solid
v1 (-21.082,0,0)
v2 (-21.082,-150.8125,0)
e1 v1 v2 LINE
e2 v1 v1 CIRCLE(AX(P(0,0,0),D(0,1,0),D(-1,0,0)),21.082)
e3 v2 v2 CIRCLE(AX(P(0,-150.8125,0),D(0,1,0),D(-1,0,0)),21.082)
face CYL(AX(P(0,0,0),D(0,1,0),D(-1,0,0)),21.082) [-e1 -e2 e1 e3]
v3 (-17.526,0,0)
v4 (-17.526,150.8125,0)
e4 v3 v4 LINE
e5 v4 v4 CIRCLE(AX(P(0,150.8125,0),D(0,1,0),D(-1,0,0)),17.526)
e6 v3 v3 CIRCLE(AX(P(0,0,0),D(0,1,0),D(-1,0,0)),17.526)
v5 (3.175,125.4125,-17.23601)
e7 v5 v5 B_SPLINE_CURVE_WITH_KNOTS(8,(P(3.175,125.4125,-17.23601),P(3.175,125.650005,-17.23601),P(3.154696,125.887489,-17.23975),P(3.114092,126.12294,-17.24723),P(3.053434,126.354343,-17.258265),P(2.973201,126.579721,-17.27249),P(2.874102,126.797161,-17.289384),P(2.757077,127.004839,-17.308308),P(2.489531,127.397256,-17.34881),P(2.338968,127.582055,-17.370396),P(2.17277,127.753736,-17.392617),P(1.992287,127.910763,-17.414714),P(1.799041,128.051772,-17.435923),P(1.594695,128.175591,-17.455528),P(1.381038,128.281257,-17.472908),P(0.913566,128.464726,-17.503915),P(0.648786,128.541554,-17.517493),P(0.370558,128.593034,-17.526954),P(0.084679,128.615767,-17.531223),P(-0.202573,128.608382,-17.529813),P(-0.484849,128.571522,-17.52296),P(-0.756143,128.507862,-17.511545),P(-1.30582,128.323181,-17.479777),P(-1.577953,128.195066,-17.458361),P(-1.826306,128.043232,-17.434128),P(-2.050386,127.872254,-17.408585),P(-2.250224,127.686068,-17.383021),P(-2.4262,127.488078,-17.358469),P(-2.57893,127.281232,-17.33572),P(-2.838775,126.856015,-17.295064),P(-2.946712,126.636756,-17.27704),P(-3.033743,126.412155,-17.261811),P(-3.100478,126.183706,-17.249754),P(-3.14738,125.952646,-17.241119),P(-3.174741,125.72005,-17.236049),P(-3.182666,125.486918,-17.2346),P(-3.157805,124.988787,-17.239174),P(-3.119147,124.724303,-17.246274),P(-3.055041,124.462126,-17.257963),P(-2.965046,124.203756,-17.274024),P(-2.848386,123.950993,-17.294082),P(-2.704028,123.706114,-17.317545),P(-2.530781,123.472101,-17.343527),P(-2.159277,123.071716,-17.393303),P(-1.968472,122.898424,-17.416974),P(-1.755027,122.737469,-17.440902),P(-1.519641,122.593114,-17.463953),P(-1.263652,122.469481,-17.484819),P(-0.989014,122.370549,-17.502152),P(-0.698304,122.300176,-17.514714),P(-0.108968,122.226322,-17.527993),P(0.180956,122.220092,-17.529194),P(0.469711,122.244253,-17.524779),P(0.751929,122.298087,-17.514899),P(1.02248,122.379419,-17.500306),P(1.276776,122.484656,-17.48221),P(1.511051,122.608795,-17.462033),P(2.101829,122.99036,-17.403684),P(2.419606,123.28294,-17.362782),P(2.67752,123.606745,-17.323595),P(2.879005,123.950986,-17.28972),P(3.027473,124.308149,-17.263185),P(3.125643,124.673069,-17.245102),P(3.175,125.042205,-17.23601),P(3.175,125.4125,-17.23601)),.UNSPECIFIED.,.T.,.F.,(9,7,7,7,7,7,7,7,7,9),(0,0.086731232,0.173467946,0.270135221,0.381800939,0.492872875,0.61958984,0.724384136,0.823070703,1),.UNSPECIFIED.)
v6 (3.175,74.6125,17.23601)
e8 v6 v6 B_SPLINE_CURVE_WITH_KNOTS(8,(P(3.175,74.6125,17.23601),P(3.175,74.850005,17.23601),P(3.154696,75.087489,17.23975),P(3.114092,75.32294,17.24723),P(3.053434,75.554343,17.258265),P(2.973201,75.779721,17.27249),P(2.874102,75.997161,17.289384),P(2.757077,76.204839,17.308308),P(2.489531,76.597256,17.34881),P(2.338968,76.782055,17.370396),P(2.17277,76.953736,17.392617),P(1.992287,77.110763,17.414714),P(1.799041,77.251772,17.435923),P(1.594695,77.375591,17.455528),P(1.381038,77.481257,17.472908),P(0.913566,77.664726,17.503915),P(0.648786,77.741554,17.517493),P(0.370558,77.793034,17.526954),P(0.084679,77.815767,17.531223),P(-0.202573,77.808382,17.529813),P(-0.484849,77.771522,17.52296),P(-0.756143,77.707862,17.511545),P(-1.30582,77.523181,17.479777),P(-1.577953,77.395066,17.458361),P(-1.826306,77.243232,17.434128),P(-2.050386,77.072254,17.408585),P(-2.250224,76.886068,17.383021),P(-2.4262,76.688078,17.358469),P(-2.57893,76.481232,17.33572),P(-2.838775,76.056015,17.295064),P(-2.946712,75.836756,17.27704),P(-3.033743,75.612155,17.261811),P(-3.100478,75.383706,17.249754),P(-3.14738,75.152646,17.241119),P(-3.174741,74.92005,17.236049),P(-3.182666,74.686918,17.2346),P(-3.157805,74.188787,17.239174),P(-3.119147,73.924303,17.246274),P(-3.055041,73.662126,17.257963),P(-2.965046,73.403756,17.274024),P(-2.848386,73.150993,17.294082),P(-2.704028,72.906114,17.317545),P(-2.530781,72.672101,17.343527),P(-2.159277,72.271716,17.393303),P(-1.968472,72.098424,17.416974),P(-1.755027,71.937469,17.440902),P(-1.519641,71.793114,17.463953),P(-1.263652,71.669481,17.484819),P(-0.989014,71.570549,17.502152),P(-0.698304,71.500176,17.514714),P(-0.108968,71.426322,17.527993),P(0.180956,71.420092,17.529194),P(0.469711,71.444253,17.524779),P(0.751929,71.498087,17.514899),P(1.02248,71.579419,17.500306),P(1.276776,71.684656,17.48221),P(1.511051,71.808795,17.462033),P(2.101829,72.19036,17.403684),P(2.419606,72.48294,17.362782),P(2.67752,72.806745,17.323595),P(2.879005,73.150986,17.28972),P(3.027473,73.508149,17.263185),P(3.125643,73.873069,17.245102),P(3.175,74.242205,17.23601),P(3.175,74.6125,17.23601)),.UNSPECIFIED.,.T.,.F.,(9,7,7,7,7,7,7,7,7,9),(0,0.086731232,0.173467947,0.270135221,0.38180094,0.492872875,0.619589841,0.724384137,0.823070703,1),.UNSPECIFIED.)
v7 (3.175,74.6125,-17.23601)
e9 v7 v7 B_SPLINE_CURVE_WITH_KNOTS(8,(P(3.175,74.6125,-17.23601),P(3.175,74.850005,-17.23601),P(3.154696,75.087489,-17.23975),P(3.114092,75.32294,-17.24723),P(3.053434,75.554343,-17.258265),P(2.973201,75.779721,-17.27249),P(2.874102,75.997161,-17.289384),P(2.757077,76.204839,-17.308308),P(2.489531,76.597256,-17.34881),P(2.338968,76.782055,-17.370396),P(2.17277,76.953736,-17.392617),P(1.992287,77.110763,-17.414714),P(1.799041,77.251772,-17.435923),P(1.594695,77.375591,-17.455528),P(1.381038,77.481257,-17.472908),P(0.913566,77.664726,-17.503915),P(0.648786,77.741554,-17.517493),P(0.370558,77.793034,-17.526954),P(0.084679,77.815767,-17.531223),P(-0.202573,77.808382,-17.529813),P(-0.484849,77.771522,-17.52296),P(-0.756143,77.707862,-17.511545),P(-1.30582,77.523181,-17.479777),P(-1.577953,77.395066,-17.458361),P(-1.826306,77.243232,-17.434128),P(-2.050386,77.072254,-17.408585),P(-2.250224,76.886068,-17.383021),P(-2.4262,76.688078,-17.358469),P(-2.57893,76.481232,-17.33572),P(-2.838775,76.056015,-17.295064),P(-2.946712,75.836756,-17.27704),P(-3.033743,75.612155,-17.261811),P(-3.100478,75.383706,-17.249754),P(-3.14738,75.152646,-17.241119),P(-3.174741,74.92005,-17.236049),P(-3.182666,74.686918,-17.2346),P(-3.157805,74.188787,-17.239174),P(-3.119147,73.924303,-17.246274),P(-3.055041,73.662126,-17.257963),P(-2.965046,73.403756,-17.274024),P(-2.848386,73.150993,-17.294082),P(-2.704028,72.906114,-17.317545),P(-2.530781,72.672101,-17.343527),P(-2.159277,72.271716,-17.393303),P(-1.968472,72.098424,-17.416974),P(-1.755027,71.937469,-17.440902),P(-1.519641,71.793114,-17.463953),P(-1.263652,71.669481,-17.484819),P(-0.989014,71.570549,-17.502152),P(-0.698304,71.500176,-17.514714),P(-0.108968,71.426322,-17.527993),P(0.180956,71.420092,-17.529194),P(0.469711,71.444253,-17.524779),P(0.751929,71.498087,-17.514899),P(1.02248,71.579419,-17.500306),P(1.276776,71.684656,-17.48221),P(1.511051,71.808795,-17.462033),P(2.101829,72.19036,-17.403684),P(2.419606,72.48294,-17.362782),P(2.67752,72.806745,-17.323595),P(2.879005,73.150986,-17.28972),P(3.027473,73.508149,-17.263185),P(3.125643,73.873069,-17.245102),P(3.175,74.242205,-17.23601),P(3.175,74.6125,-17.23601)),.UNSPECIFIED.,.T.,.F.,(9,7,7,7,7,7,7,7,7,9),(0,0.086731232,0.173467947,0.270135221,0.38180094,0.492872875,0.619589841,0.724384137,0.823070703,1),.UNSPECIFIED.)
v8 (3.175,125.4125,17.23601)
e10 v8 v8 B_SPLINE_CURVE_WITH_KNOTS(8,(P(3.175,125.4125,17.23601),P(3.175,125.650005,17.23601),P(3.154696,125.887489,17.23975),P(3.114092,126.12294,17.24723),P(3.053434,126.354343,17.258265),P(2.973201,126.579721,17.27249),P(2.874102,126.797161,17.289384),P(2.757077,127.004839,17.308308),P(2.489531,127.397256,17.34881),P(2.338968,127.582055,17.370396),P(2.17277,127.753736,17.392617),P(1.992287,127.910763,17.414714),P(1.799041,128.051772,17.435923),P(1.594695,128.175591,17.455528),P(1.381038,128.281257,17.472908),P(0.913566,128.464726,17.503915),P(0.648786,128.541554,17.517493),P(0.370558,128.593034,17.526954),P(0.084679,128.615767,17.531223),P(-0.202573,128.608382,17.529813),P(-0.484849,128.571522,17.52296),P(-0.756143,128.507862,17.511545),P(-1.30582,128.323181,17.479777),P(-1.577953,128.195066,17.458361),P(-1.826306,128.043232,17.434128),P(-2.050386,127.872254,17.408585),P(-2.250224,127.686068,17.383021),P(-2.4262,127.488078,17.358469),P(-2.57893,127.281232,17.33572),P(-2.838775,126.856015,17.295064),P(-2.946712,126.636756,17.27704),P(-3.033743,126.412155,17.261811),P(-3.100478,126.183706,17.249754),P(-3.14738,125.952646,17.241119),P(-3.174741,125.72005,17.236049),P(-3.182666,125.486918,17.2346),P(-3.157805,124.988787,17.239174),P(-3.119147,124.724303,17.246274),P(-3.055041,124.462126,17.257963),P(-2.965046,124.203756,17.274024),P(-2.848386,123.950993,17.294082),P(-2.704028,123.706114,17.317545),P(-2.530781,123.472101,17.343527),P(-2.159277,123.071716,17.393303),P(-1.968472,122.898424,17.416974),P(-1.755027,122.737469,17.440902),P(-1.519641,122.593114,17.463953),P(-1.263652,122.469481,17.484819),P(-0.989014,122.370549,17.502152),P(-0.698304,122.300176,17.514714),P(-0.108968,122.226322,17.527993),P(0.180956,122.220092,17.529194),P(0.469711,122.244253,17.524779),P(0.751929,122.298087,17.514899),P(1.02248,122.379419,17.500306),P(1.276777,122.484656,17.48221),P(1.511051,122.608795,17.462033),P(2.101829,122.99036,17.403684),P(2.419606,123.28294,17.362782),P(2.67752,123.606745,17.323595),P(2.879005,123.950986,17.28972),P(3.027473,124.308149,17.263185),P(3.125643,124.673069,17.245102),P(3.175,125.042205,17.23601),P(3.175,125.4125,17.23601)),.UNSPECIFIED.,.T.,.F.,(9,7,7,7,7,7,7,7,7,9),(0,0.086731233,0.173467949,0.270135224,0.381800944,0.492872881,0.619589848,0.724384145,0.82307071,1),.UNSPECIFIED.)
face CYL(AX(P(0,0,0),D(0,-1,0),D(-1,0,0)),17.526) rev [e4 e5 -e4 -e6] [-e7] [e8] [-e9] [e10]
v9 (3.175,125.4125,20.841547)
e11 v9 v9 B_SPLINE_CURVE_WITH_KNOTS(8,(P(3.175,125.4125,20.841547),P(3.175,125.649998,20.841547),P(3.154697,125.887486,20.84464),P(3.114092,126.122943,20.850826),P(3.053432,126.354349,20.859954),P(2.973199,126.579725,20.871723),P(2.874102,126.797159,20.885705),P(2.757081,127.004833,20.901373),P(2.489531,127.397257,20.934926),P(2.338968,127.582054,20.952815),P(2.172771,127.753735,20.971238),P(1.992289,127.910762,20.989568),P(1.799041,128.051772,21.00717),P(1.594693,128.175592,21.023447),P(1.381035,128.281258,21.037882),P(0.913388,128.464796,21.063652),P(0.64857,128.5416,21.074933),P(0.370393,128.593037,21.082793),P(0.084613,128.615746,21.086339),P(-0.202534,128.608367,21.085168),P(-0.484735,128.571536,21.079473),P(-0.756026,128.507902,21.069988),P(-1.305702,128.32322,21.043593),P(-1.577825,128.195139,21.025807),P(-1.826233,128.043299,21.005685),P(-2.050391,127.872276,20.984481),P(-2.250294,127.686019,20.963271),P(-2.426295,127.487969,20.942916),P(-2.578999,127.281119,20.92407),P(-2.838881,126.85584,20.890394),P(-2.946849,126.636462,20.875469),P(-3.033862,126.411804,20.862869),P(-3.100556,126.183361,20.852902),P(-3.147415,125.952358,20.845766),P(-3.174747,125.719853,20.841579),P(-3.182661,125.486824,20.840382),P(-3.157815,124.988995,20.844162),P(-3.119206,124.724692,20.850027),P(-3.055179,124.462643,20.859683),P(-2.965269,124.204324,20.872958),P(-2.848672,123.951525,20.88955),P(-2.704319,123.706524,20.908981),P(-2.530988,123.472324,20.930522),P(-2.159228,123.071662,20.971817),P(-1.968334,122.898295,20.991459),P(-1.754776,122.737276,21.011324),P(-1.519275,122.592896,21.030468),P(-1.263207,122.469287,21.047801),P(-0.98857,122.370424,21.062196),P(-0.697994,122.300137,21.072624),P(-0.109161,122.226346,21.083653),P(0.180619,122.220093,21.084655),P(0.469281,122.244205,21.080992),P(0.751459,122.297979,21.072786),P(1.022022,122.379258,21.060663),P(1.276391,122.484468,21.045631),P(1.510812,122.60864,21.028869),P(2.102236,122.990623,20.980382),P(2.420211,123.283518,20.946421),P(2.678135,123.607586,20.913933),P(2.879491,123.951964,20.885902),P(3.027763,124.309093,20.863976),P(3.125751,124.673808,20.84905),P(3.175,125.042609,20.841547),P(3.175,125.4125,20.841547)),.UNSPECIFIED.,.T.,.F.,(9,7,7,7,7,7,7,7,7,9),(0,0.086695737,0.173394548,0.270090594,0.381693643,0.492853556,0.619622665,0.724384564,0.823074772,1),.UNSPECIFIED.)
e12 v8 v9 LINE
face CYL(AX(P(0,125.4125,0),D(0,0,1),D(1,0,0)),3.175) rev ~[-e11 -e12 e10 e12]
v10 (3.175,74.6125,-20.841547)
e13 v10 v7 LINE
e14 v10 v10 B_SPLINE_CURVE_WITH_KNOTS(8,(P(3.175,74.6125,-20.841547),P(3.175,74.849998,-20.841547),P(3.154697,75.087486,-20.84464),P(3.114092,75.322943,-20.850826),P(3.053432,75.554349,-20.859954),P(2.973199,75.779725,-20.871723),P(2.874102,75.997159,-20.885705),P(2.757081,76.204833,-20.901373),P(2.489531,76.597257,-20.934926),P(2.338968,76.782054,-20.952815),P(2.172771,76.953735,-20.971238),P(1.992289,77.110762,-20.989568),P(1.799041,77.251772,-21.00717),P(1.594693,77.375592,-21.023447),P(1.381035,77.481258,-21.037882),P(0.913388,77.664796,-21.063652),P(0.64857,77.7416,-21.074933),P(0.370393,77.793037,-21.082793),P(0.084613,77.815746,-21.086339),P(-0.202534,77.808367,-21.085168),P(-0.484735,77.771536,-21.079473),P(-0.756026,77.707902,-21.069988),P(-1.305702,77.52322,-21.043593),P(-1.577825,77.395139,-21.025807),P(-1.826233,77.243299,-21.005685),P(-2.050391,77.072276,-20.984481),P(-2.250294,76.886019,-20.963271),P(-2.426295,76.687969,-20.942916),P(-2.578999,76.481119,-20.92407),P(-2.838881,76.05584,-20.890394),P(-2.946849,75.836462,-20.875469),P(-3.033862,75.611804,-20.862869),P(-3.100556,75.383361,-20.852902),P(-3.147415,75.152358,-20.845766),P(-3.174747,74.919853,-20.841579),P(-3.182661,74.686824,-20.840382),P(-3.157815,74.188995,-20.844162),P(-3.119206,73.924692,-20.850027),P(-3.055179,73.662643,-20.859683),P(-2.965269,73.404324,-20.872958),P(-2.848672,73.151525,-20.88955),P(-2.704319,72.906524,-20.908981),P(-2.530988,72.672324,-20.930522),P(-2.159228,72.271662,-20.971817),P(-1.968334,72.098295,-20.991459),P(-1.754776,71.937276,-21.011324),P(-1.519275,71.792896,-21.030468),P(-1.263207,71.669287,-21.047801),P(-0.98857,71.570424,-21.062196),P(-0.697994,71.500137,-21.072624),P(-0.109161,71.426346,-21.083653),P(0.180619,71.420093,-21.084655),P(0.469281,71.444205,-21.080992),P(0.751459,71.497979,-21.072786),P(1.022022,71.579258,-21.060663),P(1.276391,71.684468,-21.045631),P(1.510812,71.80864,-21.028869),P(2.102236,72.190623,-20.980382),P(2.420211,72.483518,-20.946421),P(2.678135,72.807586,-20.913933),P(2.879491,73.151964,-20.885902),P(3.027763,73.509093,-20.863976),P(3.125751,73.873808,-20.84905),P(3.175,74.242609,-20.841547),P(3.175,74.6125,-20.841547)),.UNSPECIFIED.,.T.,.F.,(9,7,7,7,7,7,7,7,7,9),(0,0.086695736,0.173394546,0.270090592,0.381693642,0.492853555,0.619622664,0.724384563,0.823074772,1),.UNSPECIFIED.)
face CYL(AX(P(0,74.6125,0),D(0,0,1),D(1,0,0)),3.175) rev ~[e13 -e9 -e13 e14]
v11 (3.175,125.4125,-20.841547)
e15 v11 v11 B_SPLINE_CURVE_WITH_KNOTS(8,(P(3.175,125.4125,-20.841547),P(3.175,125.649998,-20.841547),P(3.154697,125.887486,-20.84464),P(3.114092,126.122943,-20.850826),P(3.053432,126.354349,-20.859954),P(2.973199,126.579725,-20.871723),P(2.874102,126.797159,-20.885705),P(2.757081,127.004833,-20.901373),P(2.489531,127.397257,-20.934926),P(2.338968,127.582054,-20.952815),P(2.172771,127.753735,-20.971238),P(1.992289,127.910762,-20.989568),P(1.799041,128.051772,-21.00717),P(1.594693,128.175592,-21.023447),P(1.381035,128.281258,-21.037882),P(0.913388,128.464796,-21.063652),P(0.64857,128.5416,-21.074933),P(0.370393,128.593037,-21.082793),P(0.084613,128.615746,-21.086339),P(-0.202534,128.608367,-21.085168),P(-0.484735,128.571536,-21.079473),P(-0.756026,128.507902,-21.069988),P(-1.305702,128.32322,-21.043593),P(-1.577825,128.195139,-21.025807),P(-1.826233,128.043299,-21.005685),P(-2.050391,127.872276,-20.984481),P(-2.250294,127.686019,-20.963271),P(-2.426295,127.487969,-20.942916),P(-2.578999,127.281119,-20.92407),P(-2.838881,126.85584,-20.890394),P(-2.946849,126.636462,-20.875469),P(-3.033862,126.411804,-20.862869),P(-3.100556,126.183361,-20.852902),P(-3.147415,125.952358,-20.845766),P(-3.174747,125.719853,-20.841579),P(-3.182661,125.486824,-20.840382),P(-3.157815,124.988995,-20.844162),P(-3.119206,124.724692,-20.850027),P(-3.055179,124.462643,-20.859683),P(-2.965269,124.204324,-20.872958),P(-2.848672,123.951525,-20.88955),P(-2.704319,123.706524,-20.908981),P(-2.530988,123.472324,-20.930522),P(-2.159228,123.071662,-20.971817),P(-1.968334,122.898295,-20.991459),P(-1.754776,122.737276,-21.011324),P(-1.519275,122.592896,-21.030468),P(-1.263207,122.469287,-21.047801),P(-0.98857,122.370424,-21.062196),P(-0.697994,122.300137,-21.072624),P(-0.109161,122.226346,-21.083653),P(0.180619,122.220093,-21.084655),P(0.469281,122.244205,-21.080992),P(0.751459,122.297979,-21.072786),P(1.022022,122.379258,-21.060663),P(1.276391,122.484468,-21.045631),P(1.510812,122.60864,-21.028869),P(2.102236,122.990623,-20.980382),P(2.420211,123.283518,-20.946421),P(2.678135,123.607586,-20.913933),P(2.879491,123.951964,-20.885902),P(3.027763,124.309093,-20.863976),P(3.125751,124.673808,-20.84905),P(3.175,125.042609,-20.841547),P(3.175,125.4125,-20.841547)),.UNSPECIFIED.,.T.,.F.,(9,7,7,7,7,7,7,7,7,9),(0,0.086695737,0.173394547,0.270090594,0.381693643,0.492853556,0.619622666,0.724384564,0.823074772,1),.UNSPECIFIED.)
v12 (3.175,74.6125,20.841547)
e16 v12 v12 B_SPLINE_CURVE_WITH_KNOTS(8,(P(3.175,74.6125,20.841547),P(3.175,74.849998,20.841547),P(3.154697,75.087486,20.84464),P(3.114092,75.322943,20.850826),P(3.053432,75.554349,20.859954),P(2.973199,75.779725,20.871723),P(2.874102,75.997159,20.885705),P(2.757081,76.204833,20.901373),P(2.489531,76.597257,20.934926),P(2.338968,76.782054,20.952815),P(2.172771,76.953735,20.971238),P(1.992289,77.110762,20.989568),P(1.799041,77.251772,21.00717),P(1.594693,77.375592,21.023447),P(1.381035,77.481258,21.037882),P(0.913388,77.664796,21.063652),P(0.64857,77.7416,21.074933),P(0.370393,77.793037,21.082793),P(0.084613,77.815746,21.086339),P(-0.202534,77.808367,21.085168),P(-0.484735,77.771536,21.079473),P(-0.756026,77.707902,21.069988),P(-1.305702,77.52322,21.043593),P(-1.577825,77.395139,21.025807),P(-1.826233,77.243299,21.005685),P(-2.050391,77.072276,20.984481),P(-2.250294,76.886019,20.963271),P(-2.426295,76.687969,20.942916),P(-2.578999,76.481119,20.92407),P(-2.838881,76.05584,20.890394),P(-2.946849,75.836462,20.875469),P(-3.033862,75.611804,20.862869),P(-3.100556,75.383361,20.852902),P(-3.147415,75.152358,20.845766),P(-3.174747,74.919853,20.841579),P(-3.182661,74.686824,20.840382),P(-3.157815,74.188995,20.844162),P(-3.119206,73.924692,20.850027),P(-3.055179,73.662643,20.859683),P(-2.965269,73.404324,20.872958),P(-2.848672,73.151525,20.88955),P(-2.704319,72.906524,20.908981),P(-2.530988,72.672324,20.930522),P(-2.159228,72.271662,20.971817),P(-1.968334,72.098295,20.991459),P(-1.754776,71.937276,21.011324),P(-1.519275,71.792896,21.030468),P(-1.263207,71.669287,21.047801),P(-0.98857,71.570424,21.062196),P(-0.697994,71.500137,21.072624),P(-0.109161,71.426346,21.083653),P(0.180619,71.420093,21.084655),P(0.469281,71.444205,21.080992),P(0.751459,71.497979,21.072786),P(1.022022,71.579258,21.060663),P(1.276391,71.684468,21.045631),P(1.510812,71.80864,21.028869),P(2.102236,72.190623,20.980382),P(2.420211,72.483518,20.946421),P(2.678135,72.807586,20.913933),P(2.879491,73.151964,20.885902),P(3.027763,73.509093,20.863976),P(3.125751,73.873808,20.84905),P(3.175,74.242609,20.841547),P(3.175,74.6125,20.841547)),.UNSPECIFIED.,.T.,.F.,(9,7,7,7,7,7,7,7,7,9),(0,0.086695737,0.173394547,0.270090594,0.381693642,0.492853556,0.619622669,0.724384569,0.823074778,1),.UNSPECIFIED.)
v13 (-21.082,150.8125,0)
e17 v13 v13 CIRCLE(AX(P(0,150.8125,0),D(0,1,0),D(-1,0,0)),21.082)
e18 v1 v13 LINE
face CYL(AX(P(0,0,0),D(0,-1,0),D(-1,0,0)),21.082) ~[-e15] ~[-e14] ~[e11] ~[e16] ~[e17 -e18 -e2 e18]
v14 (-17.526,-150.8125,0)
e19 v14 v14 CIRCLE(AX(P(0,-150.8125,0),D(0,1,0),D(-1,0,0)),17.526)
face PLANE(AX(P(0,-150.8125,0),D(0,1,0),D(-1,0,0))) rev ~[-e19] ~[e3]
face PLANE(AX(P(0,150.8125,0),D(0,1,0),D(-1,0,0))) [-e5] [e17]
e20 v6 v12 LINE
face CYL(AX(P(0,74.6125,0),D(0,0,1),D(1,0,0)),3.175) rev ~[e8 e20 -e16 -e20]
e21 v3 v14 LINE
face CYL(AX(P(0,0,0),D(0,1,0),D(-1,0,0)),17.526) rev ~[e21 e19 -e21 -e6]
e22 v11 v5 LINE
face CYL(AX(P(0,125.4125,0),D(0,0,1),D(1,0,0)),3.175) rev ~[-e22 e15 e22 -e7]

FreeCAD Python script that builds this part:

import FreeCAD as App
import Part
import Sketcher
Q = App.Units.Quantity

doc = App.newDocument("Part")
body = doc.addObject("PartDesign::Body", "Body")

sketch1 = body.newObject("Sketcher::SketchObject", "Sketch")
sketch1.AttachmentSupport = (doc.getObject("XZ_Plane"), [""])
sketch1.MapMode = "FlatFace"
sketch1.addGeometry([
    Part.Circle(App.Vector(0, 0, 0), App.Vector(0, 0, 1), 21),
    Part.Circle(App.Vector(0, 0, 0), App.Vector(0, 0, 1), 18),
], False)
sketch1.addConstraint([
    Sketcher.Constraint("Coincident", 0, 3, -1, 1),
    Sketcher.Constraint("Coincident", 1, 3, -1, 1),
    Sketcher.Constraint("Diameter", 0, Q("1.66 in")),
    Sketcher.Constraint("Diameter", 1, Q("1.38 in")),
])
pad1 = body.newObject("PartDesign::Pad", "Pad")
pad1.Profile = sketch1
pad1.Length = Q("11.875 in")
pad1.Midplane = True

sketch2 = body.newObject("Sketcher::SketchObject", "Sketch001")
sketch2.AttachmentSupport = (doc.getObject("XY_Plane"), [""])
sketch2.MapMode = "FlatFace"
sketch2.addGeometry([
    Part.Circle(App.Vector(0, 125.4, 0), App.Vector(0, 0, 1), 3.2),
    Part.Circle(App.Vector(0, 74.6, 0), App.Vector(0, 0, 1), 3.2),
], False)
sketch2.addConstraint([
    Sketcher.Constraint("Equal", 0, 1),
    Sketcher.Constraint("PointOnObject", 0, 3, -2),
    Sketcher.Constraint("PointOnObject", 1, 3, -2),
    Sketcher.Constraint("Diameter", 0, Q("0.25 in")),
    Sketcher.Constraint("DistanceY", 1, 3, 0, 3, Q("2 in")),
    Sketcher.Constraint("DistanceY", -1, 1, 0, 3, Q("4.9375 in")),
])
pocket1 = body.newObject("PartDesign::Pocket", "Pocket")
pocket1.Profile = sketch2
pocket1.Type = "ThroughAll"
pocket1.Midplane = True

doc.recompute()
